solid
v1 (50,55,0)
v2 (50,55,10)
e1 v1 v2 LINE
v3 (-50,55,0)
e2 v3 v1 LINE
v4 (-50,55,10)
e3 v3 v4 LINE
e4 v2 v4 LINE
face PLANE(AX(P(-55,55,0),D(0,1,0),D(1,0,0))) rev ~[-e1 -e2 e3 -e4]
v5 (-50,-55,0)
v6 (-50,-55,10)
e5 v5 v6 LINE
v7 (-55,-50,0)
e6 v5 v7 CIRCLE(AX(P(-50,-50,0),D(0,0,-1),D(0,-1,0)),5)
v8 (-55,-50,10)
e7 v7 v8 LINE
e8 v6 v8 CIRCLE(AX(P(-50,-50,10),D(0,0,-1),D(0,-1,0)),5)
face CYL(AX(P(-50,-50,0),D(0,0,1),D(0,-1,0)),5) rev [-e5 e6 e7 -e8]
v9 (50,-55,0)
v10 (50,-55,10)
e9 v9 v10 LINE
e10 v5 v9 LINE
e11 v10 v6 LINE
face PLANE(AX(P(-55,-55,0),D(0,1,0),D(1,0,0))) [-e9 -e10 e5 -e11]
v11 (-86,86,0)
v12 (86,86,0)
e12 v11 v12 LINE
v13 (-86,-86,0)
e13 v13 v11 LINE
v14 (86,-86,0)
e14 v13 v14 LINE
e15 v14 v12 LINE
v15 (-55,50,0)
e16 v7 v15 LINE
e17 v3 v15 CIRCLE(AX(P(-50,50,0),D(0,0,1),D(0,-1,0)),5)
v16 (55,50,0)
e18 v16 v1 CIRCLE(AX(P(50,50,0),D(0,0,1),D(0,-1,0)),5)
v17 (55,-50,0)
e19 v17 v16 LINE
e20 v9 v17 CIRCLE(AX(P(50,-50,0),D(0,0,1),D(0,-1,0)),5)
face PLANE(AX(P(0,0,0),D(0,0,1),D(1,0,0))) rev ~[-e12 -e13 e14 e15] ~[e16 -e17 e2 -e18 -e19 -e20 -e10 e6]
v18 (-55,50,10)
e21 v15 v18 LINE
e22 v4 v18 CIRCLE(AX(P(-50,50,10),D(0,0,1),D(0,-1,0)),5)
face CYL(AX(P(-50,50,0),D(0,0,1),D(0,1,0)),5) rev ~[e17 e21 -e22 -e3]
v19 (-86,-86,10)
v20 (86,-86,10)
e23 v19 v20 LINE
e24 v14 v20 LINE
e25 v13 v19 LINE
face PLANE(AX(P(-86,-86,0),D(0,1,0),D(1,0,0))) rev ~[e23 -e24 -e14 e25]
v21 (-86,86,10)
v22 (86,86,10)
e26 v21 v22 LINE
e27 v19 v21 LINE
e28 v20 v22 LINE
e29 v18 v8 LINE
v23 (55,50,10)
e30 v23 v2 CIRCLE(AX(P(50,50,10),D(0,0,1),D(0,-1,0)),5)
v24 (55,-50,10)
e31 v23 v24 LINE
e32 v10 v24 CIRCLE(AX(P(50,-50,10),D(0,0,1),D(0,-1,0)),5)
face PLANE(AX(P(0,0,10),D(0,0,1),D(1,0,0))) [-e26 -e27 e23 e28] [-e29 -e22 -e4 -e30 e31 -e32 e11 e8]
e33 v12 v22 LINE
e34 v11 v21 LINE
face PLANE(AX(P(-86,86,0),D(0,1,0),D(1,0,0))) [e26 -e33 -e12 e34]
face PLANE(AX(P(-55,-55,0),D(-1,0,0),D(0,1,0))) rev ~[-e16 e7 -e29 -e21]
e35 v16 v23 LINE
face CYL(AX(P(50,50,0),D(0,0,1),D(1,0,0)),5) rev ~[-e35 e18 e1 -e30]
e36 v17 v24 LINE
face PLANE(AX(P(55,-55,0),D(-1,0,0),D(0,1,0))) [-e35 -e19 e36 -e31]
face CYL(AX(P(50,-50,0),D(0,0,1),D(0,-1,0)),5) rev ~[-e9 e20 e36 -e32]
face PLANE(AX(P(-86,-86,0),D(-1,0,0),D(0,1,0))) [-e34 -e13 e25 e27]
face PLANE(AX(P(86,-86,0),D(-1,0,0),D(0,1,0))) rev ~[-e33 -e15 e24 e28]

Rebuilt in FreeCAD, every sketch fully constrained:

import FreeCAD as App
import Part
import Sketcher
from FreeCAD import Vector
Q = App.Units.Quantity


def edges_at(feature, points):
    """Names of the edges that pass closest to the given points."""
    edges = feature.Shape.Edges
    near = lambda p: min(range(len(edges)), key=lambda i: edges[i].distToShape(Part.Vertex(*p))[0])
    return sorted({f"Edge{near(p) + 1}" for p in points})

doc = App.newDocument("Part")
body = doc.addObject("PartDesign::Body", "Body")

# Sketch on XY plane
sketch1 = doc.addObject("Sketcher::SketchObject", "Sketch")
body.addObject(sketch1)
sketch1.AttachmentSupport = (doc.XY_Plane, [""])
sketch1.MapMode = "FlatFace"
sketch1.addGeometry([
    Part.LineSegment(Vector(-86, 86, 0), Vector(-86, -86, 0)),
    Part.LineSegment(Vector(-86, -86, 0), Vector(86, -86, 0)),
    Part.LineSegment(Vector(86, -86, 0), Vector(86, 86, 0)),
    Part.LineSegment(Vector(86, 86, 0), Vector(-86, 86, 0)),
], False)
sketch1.addConstraint([
    Sketcher.Constraint("Coincident", 0, 2, 1, 1),
    Sketcher.Constraint("Coincident", 1, 2, 2, 1),
    Sketcher.Constraint("Coincident", 2, 2, 3, 1),
    Sketcher.Constraint("Coincident", 3, 2, 0, 1),
    Sketcher.Constraint("Vertical", 0),
    Sketcher.Constraint("Horizontal", 1),
    Sketcher.Constraint("Vertical", 2),
    Sketcher.Constraint("Horizontal", 3),
    Sketcher.Constraint("Symmetric", 0, 2, 2, 2, -1, 1),
    Sketcher.Constraint("Equal", 3, 0),
    Sketcher.Constraint("DistanceX", 1, 1, 1, 2, Q("172 mm")),
])
pad1 = doc.addObject("PartDesign::Pad", "Pad")
body.addObject(pad1)
pad1.Profile = sketch1
pad1.Length = 10

# Sketch on XY plane
sketch2 = doc.addObject("Sketcher::SketchObject", "Sketch001")
body.addObject(sketch2)
sketch2.AttachmentSupport = (doc.XY_Plane, [""])
sketch2.MapMode = "FlatFace"
sketch2.addGeometry([
    Part.LineSegment(Vector(-55, 55, 0), Vector(-55, -55, 0)),
    Part.LineSegment(Vector(-55, -55, 0), Vector(55, -55, 0)),
    Part.LineSegment(Vector(55, -55, 0), Vector(55, 55, 0)),
    Part.LineSegment(Vector(55, 55, 0), Vector(-55, 55, 0)),
], False)
sketch2.addConstraint([
    Sketcher.Constraint("Coincident", 0, 2, 1, 1),
    Sketcher.Constraint("Coincident", 1, 2, 2, 1),
    Sketcher.Constraint("Coincident", 2, 2, 3, 1),
    Sketcher.Constraint("Coincident", 3, 2, 0, 1),
    Sketcher.Constraint("Vertical", 0),
    Sketcher.Constraint("Horizontal", 1),
    Sketcher.Constraint("Vertical", 2),
    Sketcher.Constraint("Horizontal", 3),
    Sketcher.Constraint("Symmetric", 0, 2, 2, 2, -1, 1),
    Sketcher.Constraint("Equal", 3, 0),
    Sketcher.Constraint("DistanceX", 1, 1, 1, 2, Q("110 mm")),
])
pocket1 = doc.addObject("PartDesign::Pocket", "Pocket")
body.addObject(pocket1)
pocket1.Profile = sketch2
pocket1.Length = 45
pocket1.Reversed = True
doc.recompute()

fillet = doc.addObject("PartDesign::Fillet", "Fillet")
body.addObject(fillet)
fillet.Base = (pocket1, edges_at(pocket1, [
    (55, 55, 5),
    (55, -55, 5),
    (-55, -55, 5),
    (-55, 55, 5),
]))
fillet.Radius = 5

doc.recompute()
